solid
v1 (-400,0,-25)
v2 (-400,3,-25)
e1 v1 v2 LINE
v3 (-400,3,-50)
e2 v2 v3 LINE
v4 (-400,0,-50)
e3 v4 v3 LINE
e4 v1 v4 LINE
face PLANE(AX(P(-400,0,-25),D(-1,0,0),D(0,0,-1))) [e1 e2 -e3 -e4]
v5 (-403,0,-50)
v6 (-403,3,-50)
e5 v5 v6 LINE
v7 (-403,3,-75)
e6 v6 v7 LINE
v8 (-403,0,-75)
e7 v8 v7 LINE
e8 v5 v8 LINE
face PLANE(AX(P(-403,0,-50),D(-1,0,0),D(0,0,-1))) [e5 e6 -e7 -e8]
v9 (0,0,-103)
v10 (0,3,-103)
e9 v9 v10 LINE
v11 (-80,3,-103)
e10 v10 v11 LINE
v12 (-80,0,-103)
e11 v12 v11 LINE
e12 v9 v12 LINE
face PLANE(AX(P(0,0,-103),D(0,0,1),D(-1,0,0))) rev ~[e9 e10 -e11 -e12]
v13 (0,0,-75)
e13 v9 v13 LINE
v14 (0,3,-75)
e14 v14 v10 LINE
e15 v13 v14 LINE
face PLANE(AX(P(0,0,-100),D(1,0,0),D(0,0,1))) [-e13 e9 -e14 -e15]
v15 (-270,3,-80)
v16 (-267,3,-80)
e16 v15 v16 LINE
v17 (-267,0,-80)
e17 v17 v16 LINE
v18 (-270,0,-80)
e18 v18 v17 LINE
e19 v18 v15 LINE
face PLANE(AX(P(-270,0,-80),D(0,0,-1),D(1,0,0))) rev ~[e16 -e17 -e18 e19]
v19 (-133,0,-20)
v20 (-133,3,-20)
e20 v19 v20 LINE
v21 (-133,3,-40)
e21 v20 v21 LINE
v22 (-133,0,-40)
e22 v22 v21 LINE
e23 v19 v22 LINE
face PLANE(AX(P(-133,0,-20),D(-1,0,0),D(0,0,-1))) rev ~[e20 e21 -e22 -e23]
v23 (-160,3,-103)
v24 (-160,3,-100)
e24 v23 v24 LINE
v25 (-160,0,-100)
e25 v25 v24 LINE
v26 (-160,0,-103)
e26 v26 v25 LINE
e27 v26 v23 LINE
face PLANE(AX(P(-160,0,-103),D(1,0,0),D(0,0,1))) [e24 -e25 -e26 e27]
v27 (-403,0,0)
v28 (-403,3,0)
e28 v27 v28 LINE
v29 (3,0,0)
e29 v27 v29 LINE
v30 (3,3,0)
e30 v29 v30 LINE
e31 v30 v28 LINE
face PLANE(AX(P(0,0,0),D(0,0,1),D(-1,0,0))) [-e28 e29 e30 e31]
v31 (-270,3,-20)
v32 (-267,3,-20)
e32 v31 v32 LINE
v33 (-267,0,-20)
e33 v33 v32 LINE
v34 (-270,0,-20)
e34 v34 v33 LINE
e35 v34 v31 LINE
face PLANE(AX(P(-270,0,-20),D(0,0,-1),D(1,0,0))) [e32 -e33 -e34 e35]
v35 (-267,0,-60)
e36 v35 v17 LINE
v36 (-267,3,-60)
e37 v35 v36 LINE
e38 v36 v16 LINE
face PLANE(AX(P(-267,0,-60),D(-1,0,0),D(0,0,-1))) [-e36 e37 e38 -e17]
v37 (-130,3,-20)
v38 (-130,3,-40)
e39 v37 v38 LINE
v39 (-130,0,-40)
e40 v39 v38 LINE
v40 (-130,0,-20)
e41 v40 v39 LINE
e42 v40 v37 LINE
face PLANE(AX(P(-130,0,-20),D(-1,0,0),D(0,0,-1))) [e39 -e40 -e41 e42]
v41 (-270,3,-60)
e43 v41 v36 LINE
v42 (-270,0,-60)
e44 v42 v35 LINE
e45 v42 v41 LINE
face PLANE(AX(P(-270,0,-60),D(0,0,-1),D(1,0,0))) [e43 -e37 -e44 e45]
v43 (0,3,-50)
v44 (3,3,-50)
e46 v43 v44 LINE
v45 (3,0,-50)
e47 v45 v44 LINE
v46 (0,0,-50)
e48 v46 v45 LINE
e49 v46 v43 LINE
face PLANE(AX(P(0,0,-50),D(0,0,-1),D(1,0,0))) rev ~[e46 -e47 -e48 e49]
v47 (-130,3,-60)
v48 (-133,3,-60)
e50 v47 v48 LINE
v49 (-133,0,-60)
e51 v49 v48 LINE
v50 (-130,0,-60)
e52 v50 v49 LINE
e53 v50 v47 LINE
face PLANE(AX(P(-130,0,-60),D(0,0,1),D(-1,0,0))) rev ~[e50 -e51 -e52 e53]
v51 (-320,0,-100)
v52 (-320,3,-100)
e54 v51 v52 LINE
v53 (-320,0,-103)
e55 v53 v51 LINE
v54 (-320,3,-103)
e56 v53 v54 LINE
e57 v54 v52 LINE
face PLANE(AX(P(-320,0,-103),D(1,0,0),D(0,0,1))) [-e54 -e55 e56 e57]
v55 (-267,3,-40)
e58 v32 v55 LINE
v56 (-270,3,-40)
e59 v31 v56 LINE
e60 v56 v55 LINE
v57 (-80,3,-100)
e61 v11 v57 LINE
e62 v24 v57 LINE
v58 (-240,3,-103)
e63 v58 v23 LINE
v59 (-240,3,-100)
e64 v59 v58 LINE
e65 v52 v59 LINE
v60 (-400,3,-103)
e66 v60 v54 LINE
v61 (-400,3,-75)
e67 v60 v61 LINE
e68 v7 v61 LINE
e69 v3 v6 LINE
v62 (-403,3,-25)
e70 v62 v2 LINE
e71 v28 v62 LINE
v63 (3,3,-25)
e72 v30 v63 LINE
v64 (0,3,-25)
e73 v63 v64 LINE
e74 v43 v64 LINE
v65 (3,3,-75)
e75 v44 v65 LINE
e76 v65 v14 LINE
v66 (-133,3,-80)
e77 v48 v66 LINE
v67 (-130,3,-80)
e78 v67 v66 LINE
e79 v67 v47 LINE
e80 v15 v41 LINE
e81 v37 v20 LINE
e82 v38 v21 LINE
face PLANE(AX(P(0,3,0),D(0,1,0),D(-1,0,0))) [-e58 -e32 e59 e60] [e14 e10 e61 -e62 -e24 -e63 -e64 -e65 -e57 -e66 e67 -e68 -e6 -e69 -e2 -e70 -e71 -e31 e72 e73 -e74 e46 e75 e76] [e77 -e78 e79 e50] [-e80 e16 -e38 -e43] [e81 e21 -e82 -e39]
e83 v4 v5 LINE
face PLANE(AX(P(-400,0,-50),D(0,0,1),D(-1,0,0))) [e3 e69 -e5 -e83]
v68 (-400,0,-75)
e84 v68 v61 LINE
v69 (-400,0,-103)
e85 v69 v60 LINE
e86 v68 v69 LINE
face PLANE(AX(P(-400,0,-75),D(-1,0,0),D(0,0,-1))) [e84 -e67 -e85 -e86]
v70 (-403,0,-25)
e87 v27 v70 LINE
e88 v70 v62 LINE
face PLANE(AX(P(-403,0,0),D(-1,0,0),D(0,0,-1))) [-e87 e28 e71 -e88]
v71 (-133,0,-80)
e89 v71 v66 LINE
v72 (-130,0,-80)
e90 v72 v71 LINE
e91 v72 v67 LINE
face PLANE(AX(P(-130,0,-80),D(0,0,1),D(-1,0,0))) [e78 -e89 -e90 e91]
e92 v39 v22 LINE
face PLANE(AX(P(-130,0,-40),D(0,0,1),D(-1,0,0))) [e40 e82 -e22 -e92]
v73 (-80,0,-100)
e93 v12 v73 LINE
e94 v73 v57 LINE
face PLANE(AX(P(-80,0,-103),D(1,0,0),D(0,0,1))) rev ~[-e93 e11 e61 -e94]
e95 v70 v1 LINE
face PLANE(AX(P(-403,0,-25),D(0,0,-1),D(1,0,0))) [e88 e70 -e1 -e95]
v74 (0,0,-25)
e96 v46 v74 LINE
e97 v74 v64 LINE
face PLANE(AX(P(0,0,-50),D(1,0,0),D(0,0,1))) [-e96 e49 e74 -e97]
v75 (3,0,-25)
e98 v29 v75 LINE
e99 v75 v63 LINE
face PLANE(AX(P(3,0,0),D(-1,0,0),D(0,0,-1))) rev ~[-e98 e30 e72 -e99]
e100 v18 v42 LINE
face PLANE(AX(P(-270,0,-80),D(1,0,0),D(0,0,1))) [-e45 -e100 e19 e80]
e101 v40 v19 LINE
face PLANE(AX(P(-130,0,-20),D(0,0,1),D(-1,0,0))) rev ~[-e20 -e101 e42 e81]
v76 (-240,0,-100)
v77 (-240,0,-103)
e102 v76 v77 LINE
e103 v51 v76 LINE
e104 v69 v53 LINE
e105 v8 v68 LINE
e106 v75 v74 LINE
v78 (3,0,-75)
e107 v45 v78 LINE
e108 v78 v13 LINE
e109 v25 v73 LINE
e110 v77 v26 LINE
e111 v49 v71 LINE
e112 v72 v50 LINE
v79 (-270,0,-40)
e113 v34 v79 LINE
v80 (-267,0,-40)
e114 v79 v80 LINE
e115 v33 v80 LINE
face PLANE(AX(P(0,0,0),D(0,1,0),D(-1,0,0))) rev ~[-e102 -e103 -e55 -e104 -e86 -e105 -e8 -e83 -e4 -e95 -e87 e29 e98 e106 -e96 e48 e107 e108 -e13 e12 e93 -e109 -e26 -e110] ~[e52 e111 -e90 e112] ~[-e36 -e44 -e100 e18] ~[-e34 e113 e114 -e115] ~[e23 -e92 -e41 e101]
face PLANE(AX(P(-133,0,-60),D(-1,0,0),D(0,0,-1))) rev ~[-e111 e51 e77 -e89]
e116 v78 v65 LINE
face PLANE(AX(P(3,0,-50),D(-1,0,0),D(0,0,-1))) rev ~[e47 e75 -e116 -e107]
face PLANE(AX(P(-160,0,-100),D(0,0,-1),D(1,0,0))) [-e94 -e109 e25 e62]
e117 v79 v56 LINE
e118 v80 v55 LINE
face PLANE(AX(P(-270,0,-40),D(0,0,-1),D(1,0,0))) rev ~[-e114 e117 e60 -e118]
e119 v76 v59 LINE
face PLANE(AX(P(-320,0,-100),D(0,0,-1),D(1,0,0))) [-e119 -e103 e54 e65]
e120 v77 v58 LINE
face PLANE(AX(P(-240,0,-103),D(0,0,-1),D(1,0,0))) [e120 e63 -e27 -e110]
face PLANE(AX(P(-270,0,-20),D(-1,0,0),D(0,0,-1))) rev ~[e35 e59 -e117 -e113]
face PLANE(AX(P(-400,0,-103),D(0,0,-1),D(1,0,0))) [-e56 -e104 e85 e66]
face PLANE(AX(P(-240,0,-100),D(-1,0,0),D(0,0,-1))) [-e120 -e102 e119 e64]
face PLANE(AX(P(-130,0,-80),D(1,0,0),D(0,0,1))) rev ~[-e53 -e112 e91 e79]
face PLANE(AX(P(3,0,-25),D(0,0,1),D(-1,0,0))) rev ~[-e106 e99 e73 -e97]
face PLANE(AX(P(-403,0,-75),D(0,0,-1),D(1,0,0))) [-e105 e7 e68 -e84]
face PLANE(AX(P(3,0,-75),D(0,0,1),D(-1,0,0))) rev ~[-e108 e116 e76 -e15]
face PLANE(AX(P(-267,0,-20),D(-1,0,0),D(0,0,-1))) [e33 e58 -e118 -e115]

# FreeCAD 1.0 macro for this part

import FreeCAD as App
import Part
import Sketcher
from FreeCAD import Vector
Q = App.Units.Quantity


def add_polygon(sketch, points):
    """Adds a closed chain of lines whose ends are joined by coincident constraints."""
    first, n = sketch.GeometryCount, len(points)
    for a, b in zip(points, points[1:] + points[:1]):
        sketch.addGeometry(Part.LineSegment(App.Vector(*a, 0), App.Vector(*b, 0)), False)
    for i in range(n):
        sketch.addConstraint(Sketcher.Constraint("Coincident", first + i, 2, first + (i + 1) % n, 1))

doc = App.newDocument("Part")
params = doc.addObject("Spreadsheet::Sheet", "Params")
for row, (alias, value) in enumerate([
    ("sketch1_width", "3 mm"),
    ("sketch1_width2", "80 mm"),
    ("sketch1_height", "25 mm"),
    ("sketch1_height2", "20 mm"),
    ("pad1_length", "3 mm"),
], start=1):
    params.set(f"A{row}", alias)
    params.set(f"B{row}", "=" + value)
    params.setAlias(f"B{row}", alias)

body = doc.addObject("PartDesign::Body", "Body")

# Sketch on XZ plane
sketch1 = body.newObject("Sketcher::SketchObject", "Sketch")
sketch1.AttachmentSupport = (doc.getObject("XZ_Plane"), [""])
sketch1.MapMode = "FlatFace"
add_polygon(sketch1, [(3, 0), (3, -25), (0, -25), (0, -50), (3, -50), (3, -75), (0, -75), (0, -103), (-80, -103), (-80, -100), (-160, -100), (-160, -103), (-240, -103), (-240, -100), (-320, -100), (-320, -103), (-400, -103), (-400, -75), (-403, -75), (-403, -50), (-400, -50), (-400, -25), (-403, -25), (-403, 0)])  # lines 0-23
add_polygon(sketch1, [(-133, -80), (-130, -80), (-130, -60), (-133, -60)])  # lines 24-27
add_polygon(sketch1, [(-270, -60), (-270, -80), (-267, -80), (-267, -60)])  # lines 28-31
add_polygon(sketch1, [(-130, -40), (-130, -20), (-133, -20), (-133, -40)])  # lines 32-35
add_polygon(sketch1, [(-267, -20), (-270, -20), (-270, -40), (-267, -40)])  # lines 36-39
sketch1.addConstraint(Sketcher.Constraint("Vertical", 0))
sketch1.addConstraint(Sketcher.Constraint("Horizontal", 1))
sketch1.addConstraint(Sketcher.Constraint("Vertical", 2))
sketch1.addConstraint(Sketcher.Constraint("Horizontal", 3))
sketch1.addConstraint(Sketcher.Constraint("Vertical", 4))
sketch1.addConstraint(Sketcher.Constraint("Horizontal", 5))
sketch1.addConstraint(Sketcher.Constraint("Vertical", 6))
sketch1.addConstraint(Sketcher.Constraint("Horizontal", 7))
sketch1.addConstraint(Sketcher.Constraint("Vertical", 8))
sketch1.addConstraint(Sketcher.Constraint("Horizontal", 9))
sketch1.addConstraint(Sketcher.Constraint("Vertical", 10))
sketch1.addConstraint(Sketcher.Constraint("Horizontal", 11))
sketch1.addConstraint(Sketcher.Constraint("Vertical", 12))
sketch1.addConstraint(Sketcher.Constraint("Horizontal", 13))
sketch1.addConstraint(Sketcher.Constraint("Vertical", 14))
sketch1.addConstraint(Sketcher.Constraint("Horizontal", 15))
sketch1.addConstraint(Sketcher.Constraint("Vertical", 16))
sketch1.addConstraint(Sketcher.Constraint("Horizontal", 17))
sketch1.addConstraint(Sketcher.Constraint("Vertical", 18))
sketch1.addConstraint(Sketcher.Constraint("Horizontal", 19))
sketch1.addConstraint(Sketcher.Constraint("Vertical", 20))
sketch1.addConstraint(Sketcher.Constraint("Horizontal", 21))
sketch1.addConstraint(Sketcher.Constraint("Vertical", 22))
sketch1.addConstraint(Sketcher.Constraint("Horizontal", 23))
sketch1.addConstraint(Sketcher.Constraint("Horizontal", 24))
sketch1.addConstraint(Sketcher.Constraint("Vertical", 25))
sketch1.addConstraint(Sketcher.Constraint("Horizontal", 26))
sketch1.addConstraint(Sketcher.Constraint("Vertical", 27))
sketch1.addConstraint(Sketcher.Constraint("Vertical", 28))
sketch1.addConstraint(Sketcher.Constraint("Horizontal", 29))
sketch1.addConstraint(Sketcher.Constraint("Vertical", 30))
sketch1.addConstraint(Sketcher.Constraint("Horizontal", 31))
sketch1.addConstraint(Sketcher.Constraint("Vertical", 32))
sketch1.addConstraint(Sketcher.Constraint("Horizontal", 33))
sketch1.addConstraint(Sketcher.Constraint("Vertical", 34))
sketch1.addConstraint(Sketcher.Constraint("Horizontal", 35))
sketch1.addConstraint(Sketcher.Constraint("Horizontal", 36))
sketch1.addConstraint(Sketcher.Constraint("Vertical", 37))
sketch1.addConstraint(Sketcher.Constraint("Horizontal", 38))
sketch1.addConstraint(Sketcher.Constraint("Vertical", 39))
sketch1.addConstraint(Sketcher.Constraint("PointOnObject", 1, 2, -2))
sketch1.addConstraint(Sketcher.Constraint("PointOnObject", 5, 2, -2))
sketch1.addConstraint(Sketcher.Constraint("PointOnObject", 22, 2, -1))
sketch1.addConstraint(Sketcher.Constraint("Horizontal", 7, 2, 10, 2))
sketch1.addConstraint(Sketcher.Constraint("Horizontal", 9, 2, 12, 2))
sketch1.addConstraint(Sketcher.Constraint("Horizontal", 11, 2, 14, 2))
sketch1.addConstraint(Sketcher.Constraint("Horizontal", 5, 2, 16, 2))
sketch1.addConstraint(Sketcher.Constraint("Horizontal", 3, 2, 18, 2))
sketch1.addConstraint(Sketcher.Constraint("Horizontal", 1, 2, 20, 2))
sketch1.addConstraint(Sketcher.Constraint("Horizontal", 27, 2, 28, 2))
sketch1.addConstraint(Sketcher.Constraint("Horizontal", 26, 2, 30, 2))
sketch1.addConstraint(Sketcher.Constraint("Horizontal", 33, 2, 36, 2))
sketch1.addConstraint(Sketcher.Constraint("Horizontal", 35, 2, 37, 2))
sketch1.addConstraint(Sketcher.Constraint("Vertical", 0, 2, 3, 2))
sketch1.addConstraint(Sketcher.Constraint("Vertical", 16, 2, 19, 2))
sketch1.addConstraint(Sketcher.Constraint("Vertical", 18, 2, 21, 2))
sketch1.addConstraint(Sketcher.Constraint("Vertical", 25, 2, 32, 2))
sketch1.addConstraint(Sketcher.Constraint("Vertical", 27, 2, 33, 2))
sketch1.addConstraint(Sketcher.Constraint("Vertical", 31, 2, 36, 2))
sketch1.addConstraint(Sketcher.Constraint("Vertical", 30, 2, 38, 2))
sketch1.addConstraint(Sketcher.Constraint("Equal", 7, 9))
sketch1.addConstraint(Sketcher.Constraint("Equal", 9, 11))
sketch1.addConstraint(Sketcher.Constraint("Equal", 11, 13))
sketch1.addConstraint(Sketcher.Constraint("Equal", 13, 15))
sketch1.addConstraint(Sketcher.Constraint("Equal", 5, 17))
sketch1.addConstraint(Sketcher.Constraint("Equal", 21, 24))
sketch1.addConstraint(Sketcher.Constraint("Equal", 26, 29))
sketch1.addConstraint(Sketcher.Constraint("Equal", 0, 2))
sketch1.addConstraint(Sketcher.Constraint("Equal", 2, 4))
sketch1.addConstraint(Sketcher.Constraint("Equal", 38, 8))
sketch1.addConstraint(Sketcher.Constraint("Equal", 30, 32))
sketch1.addConstraint(Sketcher.Constraint("DistanceX", 1, 2, 1, 1, Q("3 mm")))
sketch1.addConstraint(Sketcher.Constraint("DistanceX", 7, 2, 7, 1, Q("80 mm")))
sketch1.addConstraint(Sketcher.Constraint("DistanceY", 0, 2, 0, 1, Q("25 mm")))
sketch1.addConstraint(Sketcher.Constraint("DistanceY", 25, 1, 25, 2, Q("20 mm")))
sketch1.addConstraint(Sketcher.Constraint("DistanceY", 8, 2, -1, 1, Q("100 mm")))
sketch1.addConstraint(Sketcher.Constraint("DistanceX", 24, 2, -1, 1, Q("130 mm")))
sketch1.addConstraint(Sketcher.Constraint("DistanceY", 24, 2, -1, 1, Q("80 mm")))
sketch1.addConstraint(Sketcher.Constraint("DistanceY", 32, 2, -1, 1, Q("20 mm")))
sketch1.addConstraint(Sketcher.Constraint("DistanceX", 28, 2, -1, 1, Q("270 mm")))
sketch1.setExpression("Constraints[111]", "Params.sketch1_width")
sketch1.setExpression("Constraints[112]", "Params.sketch1_width2")
sketch1.setExpression("Constraints[113]", "Params.sketch1_height")
sketch1.setExpression("Constraints[114]", "Params.sketch1_height2")
pad1 = body.newObject("PartDesign::Pad", "Pad")
pad1.Profile = sketch1
pad1.setExpression("Length", "Params.pad1_length")
pad1.Reversed = True

doc.recompute()
